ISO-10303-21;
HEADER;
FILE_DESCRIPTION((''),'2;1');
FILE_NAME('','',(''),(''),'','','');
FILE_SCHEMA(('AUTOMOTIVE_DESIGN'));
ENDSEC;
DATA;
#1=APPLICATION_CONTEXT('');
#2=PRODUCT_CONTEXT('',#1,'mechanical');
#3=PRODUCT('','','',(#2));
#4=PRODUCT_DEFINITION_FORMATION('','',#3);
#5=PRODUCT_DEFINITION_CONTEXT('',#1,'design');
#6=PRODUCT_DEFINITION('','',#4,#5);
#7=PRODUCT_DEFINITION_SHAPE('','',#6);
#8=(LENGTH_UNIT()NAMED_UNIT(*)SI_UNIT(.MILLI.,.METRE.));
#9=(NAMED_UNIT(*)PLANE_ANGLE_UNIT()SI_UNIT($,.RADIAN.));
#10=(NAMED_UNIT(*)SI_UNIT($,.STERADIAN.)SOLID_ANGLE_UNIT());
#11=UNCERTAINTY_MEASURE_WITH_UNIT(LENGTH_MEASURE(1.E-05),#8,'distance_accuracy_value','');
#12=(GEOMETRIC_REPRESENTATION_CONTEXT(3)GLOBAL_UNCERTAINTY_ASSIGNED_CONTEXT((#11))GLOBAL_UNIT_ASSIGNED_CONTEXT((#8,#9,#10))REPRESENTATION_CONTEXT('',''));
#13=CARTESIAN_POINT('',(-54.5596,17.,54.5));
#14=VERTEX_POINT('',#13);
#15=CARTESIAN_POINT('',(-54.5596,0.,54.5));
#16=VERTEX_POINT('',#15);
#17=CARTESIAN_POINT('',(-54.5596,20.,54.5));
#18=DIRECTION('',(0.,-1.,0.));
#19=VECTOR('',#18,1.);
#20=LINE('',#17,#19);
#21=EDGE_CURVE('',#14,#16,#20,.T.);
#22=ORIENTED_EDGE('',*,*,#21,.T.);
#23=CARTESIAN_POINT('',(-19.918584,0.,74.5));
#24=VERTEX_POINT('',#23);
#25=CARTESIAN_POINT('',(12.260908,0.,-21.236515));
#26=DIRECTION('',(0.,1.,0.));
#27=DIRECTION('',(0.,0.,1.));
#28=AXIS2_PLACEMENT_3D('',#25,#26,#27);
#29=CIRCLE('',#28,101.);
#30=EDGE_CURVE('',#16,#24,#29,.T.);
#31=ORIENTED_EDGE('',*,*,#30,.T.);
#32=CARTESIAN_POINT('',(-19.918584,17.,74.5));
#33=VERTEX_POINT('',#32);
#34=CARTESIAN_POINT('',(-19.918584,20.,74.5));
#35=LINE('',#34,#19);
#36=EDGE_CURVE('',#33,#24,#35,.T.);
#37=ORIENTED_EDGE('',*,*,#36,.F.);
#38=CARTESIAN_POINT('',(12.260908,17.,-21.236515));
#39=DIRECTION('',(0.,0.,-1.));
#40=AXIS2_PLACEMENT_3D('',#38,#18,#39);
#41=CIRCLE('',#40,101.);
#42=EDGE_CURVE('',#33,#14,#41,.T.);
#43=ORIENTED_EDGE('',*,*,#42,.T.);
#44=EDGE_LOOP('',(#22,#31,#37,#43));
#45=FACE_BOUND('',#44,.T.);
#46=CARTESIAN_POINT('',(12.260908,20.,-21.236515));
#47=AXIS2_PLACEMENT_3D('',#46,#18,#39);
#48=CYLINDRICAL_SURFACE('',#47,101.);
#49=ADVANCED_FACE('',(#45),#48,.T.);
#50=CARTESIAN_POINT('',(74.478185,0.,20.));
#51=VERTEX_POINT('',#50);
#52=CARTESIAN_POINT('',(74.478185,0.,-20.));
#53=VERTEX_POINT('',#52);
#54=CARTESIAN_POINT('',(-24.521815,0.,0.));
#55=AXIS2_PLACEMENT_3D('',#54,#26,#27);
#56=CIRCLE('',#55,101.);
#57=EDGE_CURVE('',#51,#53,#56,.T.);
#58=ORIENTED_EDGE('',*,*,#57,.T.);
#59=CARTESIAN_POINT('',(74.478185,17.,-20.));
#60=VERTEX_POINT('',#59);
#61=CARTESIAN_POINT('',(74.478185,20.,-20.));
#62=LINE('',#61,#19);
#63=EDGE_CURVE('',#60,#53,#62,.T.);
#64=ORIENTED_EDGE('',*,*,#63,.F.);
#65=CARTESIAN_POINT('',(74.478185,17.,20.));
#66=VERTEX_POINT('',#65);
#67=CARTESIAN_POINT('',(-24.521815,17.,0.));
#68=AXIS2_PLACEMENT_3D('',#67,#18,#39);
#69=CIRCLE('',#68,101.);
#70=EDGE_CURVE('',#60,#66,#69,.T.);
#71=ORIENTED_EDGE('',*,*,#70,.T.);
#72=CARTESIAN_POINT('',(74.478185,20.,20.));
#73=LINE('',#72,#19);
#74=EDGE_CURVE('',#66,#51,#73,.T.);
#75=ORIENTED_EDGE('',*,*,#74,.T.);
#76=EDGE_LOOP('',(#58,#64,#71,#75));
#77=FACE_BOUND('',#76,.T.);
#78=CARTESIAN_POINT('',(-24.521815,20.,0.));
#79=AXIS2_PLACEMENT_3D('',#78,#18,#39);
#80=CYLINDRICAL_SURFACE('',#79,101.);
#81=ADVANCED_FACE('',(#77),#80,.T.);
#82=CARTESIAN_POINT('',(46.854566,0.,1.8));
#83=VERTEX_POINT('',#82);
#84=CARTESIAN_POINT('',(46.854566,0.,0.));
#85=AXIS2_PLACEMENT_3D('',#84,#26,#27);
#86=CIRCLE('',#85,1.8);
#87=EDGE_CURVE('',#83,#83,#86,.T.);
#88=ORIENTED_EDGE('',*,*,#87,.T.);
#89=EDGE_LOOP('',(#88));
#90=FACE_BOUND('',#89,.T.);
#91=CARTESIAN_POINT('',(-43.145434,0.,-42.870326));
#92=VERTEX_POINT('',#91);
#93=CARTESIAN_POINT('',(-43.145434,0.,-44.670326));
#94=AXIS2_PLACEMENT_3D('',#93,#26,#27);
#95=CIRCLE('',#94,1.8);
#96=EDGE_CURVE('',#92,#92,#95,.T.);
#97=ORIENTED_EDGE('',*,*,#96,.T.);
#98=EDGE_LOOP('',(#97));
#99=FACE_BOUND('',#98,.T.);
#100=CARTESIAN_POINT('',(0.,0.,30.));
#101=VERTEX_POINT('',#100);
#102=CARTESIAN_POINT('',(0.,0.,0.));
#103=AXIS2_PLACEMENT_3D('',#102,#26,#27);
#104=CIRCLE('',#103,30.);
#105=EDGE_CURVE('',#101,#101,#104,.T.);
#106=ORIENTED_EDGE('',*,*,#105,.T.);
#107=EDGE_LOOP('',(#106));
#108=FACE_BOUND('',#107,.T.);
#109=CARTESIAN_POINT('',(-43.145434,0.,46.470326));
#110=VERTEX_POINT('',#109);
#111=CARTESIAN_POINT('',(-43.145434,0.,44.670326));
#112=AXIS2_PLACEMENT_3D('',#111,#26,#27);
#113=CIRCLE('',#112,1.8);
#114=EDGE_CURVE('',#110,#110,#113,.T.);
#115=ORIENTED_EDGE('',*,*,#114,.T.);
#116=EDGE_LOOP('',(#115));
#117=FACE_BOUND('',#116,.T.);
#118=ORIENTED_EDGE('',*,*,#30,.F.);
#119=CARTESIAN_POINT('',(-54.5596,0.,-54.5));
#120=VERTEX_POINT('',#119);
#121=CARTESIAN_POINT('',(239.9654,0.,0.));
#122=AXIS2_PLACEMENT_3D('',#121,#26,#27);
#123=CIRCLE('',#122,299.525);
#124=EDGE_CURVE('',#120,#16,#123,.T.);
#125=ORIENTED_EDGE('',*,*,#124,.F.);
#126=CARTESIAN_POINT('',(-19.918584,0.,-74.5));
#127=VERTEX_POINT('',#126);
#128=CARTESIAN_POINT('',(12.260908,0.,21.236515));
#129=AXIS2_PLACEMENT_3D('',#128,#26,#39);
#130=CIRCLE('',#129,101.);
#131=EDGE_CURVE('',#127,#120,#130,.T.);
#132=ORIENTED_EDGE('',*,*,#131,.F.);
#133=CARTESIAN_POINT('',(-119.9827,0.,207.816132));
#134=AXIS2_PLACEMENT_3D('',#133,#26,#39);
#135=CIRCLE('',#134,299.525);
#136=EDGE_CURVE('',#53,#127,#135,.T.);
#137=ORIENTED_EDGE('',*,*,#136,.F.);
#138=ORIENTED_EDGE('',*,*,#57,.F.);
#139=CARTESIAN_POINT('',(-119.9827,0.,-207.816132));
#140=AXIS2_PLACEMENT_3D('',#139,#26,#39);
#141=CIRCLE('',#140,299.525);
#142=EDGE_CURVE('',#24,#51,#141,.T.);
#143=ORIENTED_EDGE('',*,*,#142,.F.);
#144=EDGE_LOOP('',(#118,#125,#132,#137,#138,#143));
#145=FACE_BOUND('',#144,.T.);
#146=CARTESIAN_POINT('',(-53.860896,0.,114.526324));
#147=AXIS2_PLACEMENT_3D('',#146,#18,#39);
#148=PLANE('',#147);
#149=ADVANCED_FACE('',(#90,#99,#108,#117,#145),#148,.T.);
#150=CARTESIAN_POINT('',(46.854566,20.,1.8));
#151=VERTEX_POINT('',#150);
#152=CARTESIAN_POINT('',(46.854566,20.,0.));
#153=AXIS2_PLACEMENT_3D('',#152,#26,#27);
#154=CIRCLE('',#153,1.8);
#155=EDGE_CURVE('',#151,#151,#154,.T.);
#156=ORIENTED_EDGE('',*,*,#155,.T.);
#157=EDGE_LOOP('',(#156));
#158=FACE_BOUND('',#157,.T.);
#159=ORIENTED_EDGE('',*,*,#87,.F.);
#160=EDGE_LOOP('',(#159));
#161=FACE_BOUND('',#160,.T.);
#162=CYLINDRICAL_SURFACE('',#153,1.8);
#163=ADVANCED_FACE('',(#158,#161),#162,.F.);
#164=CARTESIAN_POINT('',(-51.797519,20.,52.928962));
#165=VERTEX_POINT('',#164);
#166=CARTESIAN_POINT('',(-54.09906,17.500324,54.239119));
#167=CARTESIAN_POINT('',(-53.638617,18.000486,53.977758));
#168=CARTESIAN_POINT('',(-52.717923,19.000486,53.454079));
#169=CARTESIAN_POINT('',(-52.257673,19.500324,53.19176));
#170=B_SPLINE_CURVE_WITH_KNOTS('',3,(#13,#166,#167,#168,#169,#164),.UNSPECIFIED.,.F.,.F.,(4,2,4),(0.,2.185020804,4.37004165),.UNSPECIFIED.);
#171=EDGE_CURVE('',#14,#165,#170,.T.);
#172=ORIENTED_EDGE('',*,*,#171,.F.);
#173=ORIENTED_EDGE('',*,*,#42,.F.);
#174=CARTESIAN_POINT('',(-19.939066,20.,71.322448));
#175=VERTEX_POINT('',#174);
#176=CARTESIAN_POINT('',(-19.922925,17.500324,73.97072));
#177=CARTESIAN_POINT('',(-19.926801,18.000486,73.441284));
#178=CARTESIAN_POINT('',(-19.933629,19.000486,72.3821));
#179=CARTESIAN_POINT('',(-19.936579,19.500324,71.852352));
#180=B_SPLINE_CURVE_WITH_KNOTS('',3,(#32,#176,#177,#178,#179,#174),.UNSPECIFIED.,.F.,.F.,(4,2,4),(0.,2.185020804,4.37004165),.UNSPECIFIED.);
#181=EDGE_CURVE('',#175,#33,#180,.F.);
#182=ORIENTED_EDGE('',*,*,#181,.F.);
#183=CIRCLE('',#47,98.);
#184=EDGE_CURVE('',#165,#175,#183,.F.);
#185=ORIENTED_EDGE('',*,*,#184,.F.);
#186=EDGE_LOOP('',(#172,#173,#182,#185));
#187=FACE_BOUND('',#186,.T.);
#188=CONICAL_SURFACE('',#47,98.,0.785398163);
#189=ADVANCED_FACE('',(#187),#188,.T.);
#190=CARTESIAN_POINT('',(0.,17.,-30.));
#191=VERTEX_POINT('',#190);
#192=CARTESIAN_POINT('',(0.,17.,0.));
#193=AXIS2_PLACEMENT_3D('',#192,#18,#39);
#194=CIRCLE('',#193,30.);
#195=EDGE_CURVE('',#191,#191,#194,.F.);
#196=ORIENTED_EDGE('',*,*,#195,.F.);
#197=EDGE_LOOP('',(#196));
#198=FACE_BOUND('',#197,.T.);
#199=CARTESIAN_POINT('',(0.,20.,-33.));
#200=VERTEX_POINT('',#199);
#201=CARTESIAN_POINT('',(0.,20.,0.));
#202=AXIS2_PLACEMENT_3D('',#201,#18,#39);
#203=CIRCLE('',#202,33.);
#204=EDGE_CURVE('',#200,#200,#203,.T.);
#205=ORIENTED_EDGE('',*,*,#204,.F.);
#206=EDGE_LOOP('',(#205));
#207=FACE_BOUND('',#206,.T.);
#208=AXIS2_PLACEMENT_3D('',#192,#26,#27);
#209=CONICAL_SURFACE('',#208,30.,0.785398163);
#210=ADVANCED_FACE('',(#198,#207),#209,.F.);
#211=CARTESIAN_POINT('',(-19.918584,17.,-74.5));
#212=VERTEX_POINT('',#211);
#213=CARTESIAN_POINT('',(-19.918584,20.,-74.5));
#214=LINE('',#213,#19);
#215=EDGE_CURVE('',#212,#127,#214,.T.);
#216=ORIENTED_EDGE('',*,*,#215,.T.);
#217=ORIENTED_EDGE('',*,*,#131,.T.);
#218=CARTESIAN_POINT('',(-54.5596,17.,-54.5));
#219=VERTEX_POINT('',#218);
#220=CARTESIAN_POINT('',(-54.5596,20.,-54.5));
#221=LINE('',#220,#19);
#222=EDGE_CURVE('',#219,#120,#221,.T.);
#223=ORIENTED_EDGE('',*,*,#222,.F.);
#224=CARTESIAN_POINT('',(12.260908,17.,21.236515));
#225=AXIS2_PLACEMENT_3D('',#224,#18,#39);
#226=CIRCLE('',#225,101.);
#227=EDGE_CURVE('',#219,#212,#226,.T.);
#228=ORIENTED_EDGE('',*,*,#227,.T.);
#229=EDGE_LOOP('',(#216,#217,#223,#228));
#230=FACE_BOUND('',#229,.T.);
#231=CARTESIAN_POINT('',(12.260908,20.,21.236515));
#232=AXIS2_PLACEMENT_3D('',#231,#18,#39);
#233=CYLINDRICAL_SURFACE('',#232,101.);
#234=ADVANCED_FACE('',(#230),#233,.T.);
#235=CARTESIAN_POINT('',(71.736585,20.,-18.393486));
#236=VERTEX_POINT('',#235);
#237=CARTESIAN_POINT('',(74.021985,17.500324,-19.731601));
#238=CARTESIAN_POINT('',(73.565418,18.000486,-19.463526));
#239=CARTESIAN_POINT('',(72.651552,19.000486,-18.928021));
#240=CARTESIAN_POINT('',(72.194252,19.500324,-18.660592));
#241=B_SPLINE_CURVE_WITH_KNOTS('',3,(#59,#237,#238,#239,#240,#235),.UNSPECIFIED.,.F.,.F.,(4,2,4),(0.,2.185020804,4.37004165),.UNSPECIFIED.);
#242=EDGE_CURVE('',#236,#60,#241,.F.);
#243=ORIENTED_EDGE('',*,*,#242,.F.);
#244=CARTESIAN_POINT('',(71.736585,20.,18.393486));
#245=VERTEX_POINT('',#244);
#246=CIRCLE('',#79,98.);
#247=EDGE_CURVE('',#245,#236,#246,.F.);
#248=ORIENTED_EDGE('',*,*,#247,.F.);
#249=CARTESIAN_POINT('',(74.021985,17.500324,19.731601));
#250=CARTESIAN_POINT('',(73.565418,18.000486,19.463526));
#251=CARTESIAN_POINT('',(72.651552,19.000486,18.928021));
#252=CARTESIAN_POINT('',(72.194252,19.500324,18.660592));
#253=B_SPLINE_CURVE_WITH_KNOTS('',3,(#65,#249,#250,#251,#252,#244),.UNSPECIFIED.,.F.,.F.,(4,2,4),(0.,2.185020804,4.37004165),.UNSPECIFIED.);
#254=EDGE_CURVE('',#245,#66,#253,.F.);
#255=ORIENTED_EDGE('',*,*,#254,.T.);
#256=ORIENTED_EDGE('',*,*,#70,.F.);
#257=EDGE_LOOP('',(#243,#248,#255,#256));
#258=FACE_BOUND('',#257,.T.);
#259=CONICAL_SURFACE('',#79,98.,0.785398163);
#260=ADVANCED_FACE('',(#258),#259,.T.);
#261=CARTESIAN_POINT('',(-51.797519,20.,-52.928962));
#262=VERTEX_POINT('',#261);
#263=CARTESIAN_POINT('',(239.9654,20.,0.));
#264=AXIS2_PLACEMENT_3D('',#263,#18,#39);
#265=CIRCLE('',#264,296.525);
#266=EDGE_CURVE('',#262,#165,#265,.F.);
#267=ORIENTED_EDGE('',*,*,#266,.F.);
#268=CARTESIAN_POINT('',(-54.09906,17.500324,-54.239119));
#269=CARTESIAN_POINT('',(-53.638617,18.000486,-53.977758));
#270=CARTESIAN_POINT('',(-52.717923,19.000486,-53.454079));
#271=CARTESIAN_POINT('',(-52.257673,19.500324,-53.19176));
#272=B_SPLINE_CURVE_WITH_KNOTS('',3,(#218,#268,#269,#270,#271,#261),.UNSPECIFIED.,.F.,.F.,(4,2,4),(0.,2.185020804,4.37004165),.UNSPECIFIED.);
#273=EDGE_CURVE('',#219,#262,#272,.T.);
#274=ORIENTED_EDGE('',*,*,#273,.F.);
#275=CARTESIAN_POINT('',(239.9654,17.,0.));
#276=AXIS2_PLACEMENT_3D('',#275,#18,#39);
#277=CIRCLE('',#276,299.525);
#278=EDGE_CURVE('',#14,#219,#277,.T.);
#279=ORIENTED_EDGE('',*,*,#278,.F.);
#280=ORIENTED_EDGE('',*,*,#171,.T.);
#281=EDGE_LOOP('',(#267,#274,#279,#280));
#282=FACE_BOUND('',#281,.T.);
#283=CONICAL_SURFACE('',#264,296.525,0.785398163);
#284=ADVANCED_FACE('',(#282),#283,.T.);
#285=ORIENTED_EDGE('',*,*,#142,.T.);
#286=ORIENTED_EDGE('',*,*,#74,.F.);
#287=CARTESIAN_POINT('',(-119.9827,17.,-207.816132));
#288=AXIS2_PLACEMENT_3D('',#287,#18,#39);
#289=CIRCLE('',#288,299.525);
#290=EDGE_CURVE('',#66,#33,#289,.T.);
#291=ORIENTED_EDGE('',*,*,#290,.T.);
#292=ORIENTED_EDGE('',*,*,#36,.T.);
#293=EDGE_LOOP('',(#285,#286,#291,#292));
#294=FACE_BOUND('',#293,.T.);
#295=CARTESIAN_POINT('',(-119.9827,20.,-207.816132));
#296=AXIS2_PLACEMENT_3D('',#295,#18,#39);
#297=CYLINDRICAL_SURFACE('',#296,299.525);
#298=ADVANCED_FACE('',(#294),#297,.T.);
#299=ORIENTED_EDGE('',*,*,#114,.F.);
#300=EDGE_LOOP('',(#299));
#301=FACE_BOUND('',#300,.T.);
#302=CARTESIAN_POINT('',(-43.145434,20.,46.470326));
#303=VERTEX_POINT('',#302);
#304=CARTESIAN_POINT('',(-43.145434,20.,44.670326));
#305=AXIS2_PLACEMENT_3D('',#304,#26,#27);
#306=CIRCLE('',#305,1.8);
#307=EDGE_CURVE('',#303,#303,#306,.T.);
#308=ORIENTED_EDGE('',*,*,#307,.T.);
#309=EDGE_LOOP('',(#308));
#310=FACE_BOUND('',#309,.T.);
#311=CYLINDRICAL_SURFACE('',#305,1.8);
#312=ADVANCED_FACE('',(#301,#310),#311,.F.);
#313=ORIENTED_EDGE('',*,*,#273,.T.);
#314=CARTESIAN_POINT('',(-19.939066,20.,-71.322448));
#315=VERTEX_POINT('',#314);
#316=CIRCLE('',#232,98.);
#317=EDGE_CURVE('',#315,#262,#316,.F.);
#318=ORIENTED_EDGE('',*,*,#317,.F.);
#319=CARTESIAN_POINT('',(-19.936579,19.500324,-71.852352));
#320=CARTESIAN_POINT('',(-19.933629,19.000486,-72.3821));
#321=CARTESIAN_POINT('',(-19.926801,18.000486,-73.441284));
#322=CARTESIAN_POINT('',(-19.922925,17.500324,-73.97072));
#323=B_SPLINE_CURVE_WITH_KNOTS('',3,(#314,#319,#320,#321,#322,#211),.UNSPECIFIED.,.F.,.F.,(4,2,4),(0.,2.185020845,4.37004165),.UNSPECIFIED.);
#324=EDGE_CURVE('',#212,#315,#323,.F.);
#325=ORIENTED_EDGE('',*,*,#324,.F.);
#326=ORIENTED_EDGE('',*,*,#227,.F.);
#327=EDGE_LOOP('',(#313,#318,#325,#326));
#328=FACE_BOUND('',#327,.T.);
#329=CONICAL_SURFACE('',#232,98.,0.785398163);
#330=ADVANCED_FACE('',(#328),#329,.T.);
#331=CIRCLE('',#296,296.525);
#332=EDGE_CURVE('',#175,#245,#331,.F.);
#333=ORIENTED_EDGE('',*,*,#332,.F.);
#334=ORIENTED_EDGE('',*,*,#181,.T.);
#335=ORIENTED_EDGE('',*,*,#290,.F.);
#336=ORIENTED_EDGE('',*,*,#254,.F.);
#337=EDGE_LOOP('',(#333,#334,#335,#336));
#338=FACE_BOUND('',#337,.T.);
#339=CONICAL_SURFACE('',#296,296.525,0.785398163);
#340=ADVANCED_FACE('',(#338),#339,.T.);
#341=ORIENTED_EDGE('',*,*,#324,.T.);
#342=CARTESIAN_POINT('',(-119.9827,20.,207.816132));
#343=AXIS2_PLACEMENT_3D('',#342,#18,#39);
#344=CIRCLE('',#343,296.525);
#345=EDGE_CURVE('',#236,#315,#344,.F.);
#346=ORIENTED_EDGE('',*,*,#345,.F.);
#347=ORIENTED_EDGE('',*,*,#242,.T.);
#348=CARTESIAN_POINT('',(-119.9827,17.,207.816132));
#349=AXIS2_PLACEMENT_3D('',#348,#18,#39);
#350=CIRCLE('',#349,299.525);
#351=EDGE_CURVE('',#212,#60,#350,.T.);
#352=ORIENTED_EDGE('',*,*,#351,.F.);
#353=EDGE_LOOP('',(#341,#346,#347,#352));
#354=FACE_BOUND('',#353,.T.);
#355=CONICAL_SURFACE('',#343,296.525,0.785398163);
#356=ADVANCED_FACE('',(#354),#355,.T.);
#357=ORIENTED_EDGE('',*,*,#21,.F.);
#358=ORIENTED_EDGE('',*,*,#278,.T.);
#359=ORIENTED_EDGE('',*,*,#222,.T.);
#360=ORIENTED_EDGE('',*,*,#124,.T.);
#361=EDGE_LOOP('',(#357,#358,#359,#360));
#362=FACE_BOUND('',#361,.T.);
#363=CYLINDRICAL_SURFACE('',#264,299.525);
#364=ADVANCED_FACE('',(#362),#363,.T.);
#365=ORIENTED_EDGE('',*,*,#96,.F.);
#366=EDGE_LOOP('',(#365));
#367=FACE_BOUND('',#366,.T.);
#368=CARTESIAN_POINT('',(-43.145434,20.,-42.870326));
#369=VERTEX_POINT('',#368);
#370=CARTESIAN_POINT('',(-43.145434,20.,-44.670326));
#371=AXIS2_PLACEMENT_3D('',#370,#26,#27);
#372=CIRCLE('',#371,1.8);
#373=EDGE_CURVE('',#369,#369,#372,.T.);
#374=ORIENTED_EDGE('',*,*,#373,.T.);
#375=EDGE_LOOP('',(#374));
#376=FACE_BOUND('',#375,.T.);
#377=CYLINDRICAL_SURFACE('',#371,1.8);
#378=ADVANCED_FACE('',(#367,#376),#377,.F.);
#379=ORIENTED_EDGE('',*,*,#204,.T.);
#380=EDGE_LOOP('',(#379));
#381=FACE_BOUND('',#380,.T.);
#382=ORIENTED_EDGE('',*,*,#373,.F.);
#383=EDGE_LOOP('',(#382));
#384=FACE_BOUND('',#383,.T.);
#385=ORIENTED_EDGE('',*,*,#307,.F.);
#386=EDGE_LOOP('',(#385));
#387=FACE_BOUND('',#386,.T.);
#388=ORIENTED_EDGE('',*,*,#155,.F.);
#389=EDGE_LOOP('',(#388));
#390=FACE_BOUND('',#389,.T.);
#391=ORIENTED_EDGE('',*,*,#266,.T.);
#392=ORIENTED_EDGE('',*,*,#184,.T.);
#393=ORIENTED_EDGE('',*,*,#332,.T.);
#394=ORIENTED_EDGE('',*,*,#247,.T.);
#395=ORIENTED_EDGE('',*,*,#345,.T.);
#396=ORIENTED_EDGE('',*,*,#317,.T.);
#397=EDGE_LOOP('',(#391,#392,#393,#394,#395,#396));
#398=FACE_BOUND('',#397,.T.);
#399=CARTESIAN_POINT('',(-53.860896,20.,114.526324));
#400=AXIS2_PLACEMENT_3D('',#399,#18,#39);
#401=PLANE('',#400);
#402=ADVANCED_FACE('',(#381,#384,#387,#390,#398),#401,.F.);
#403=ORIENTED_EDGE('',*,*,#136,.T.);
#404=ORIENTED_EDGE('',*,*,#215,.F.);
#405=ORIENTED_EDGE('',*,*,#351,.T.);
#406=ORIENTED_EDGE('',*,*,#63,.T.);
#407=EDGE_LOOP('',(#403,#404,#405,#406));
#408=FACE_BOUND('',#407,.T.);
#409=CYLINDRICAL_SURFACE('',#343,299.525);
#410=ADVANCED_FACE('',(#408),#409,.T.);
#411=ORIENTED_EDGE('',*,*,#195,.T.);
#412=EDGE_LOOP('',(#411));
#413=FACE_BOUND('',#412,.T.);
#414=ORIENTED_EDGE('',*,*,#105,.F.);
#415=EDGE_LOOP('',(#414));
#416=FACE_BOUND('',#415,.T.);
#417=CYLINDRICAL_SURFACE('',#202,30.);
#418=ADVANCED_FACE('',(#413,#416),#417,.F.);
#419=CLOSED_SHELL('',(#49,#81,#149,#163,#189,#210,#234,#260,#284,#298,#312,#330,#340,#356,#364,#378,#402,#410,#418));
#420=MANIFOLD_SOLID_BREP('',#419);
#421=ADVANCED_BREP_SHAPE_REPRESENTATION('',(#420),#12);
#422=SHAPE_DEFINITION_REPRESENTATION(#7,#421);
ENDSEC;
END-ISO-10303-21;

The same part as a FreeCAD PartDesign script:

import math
import FreeCAD as App
import Part
import Sketcher
from FreeCAD import Vector


def edges_at(feature, points):
    """Names of the edges that pass closest to the given points."""
    edges = feature.Shape.Edges
    near = lambda p: min(range(len(edges)), key=lambda i: edges[i].distToShape(Part.Vertex(*p))[0])
    return sorted({f"Edge{near(p) + 1}" for p in points})

doc = App.newDocument("Part")
body = doc.addObject("PartDesign::Body", "Body")

sketch1 = doc.addObject("Sketcher::SketchObject", "Sketch")
body.addObject(sketch1)
sketch1.AttachmentSupport = (doc.XZ_Plane, [""])
sketch1.MapMode = "FlatFace"
sketch1.addGeometry(Part.ArcOfCircle(Part.Circle(Vector(240, 0, 0), Vector(0, 0, 1), 300), math.radians(170), math.radians(190)), False)
sketch1.addGeometry(Part.ArcOfCircle(Part.Circle(Vector(12, -21, 0), Vector(0, 0, 1), 101), math.radians(109), math.radians(131)), False)
sketch1.addGeometry(Part.ArcOfCircle(Part.Circle(Vector(-120, -208, 0), Vector(0, 0, 1), 300), math.radians(50), math.radians(70)), False)
sketch1.addGeometry(Part.ArcOfCircle(Part.Circle(Vector(-25, 0, 0), Vector(0, 0, 1), 101), math.radians(-11), math.radians(11)), False)
sketch1.addGeometry(Part.ArcOfCircle(Part.Circle(Vector(-120, 208, 0), Vector(0, 0, 1), 300), math.radians(-70), math.radians(-50)), False)
sketch1.addGeometry(Part.ArcOfCircle(Part.Circle(Vector(12, 21, 0), Vector(0, 0, 1), 101), math.radians(-131), math.radians(-109)), False)
sketch1.addGeometry(Part.Circle(Vector(0, 0, 0), Vector(0, 0, 1), 30), False)
sketch1.addConstraint(Sketcher.Constraint("Coincident", 0, 1, 1, 2))
sketch1.addConstraint(Sketcher.Constraint("Coincident", 1, 1, 2, 2))
sketch1.addConstraint(Sketcher.Constraint("Coincident", 2, 1, 3, 2))
sketch1.addConstraint(Sketcher.Constraint("Coincident", 3, 1, 4, 2))
sketch1.addConstraint(Sketcher.Constraint("Coincident", 4, 1, 5, 2))
sketch1.addConstraint(Sketcher.Constraint("Coincident", 5, 1, 0, 2))
sketch1.addConstraint(Sketcher.Constraint("Coincident", 6, 3, -1, 1))
sketch1.addConstraint(Sketcher.Constraint("Equal", 0, 2))
sketch1.addConstraint(Sketcher.Constraint("Equal", 1, 3))
sketch1.addConstraint(Sketcher.Constraint("Equal", 2, 4))
sketch1.addConstraint(Sketcher.Constraint("Equal", 3, 5))
sketch1.addConstraint(Sketcher.Constraint("Symmetric", 2, 3, 4, 3, -1))
sketch1.addConstraint(Sketcher.Constraint("Symmetric", 1, 3, 5, 3, -1))
sketch1.addConstraint(Sketcher.Constraint("PointOnObject", 0, 3, -1))
sketch1.addConstraint(Sketcher.Constraint("PointOnObject", 3, 3, -1))
sketch1.addConstraint(Sketcher.Constraint("Diameter", 6, 60.0))
sketch1.addConstraint(Sketcher.Constraint("Radius", 1, 101.0))
sketch1.addConstraint(Sketcher.Constraint("DistanceY", -1, 1, 2, 1, 20.0))
sketch1.addConstraint(Sketcher.Constraint("Radius", 0, 299.525))
sketch1.addConstraint(Sketcher.Constraint("DistanceY", 0, 1, 1, 1, 20.0))
sketch1.addConstraint(Sketcher.Constraint("DistanceY", -1, 1, 1, 1, 74.5))
sketch1.addConstraint(Sketcher.Constraint("DistanceX", -1, 1, 0, 3, 239.9654))
sketch1.addConstraint(Sketcher.Constraint("DistanceX", 2, 3, -1, 1, 119.9827))
sketch1.addConstraint(Sketcher.Constraint("DistanceX", 1, 3, 0, 3, 227.704492))
pad1 = doc.addObject("PartDesign::Pad", "Pad")
body.addObject(pad1)
pad1.Profile = sketch1
pad1.Length = 20
pad1.Reversed = True
doc.recompute()

chamfer = doc.addObject("PartDesign::Chamfer", "Chamfer")
body.addObject(chamfer)
chamfer.Base = (pad1, edges_at(pad1, [
    (-38.239, 20, 66.232),
    (29.78, 20, 51.58),
    (-30, 20, 0),
    (76.478, 20, 0),
    (29.78, 20, -51.58),
    (-38.239, 20, -66.232),
    (-59.56, 20, 0),
]))
chamfer.Size = 3

sketch2 = doc.addObject("Sketcher::SketchObject", "Sketch001")
body.addObject(sketch2)
sketch2.AttachmentSupport = (doc.XZ_Plane, [""])
sketch2.MapMode = "FlatFace"
sketch2.AttachmentOffset = App.Placement(Vector(0, 0, -20), App.Rotation())
sketch2.addGeometry(Part.Circle(Vector(0, 0, 0), Vector(0, 0, 1), 1.8), False)
sketch2.addGeometry(Part.Circle(Vector(-43.1, -44.7, 0), Vector(0, 0, 1), 1.8), False)
sketch2.addGeometry(Part.Circle(Vector(-43.1, 44.7, 0), Vector(0, 0, 1), 1.8), False)
sketch2.addGeometry(Part.Circle(Vector(46.9, 0, 0), Vector(0, 0, 1), 1.8), False)
sketch2.addConstraint(Sketcher.Constraint("Coincident", 0, 3, -1, 1))
sketch2.addConstraint(Sketcher.Constraint("Equal", 0, 1))
sketch2.addConstraint(Sketcher.Constraint("Equal", 1, 2))
sketch2.addConstraint(Sketcher.Constraint("Equal", 2, 3))
sketch2.addConstraint(Sketcher.Constraint("Symmetric", 1, 3, 2, 3, -1))
sketch2.addConstraint(Sketcher.Constraint("PointOnObject", 3, 3, -1))
sketch2.addConstraint(Sketcher.Constraint("Diameter", 0, 3.6))
sketch2.addConstraint(Sketcher.Constraint("DistanceX", 1, 3, 3, 3, 90.0))
sketch2.addConstraint(Sketcher.Constraint("DistanceX", 1, 3, -1, 1, 43.145434))
sketch2.addConstraint(Sketcher.Constraint("DistanceY", 1, 3, -1, 1, 44.670326))
doc.recompute()
hole = doc.addObject("PartDesign::Hole", "Hole")
body.addObject(hole)
hole.Profile = sketch2
hole.ThreadType = "None"
hole.Diameter = 3.6
hole.DepthType = "ThroughAll"
hole.Reversed = True

doc.recompute()
